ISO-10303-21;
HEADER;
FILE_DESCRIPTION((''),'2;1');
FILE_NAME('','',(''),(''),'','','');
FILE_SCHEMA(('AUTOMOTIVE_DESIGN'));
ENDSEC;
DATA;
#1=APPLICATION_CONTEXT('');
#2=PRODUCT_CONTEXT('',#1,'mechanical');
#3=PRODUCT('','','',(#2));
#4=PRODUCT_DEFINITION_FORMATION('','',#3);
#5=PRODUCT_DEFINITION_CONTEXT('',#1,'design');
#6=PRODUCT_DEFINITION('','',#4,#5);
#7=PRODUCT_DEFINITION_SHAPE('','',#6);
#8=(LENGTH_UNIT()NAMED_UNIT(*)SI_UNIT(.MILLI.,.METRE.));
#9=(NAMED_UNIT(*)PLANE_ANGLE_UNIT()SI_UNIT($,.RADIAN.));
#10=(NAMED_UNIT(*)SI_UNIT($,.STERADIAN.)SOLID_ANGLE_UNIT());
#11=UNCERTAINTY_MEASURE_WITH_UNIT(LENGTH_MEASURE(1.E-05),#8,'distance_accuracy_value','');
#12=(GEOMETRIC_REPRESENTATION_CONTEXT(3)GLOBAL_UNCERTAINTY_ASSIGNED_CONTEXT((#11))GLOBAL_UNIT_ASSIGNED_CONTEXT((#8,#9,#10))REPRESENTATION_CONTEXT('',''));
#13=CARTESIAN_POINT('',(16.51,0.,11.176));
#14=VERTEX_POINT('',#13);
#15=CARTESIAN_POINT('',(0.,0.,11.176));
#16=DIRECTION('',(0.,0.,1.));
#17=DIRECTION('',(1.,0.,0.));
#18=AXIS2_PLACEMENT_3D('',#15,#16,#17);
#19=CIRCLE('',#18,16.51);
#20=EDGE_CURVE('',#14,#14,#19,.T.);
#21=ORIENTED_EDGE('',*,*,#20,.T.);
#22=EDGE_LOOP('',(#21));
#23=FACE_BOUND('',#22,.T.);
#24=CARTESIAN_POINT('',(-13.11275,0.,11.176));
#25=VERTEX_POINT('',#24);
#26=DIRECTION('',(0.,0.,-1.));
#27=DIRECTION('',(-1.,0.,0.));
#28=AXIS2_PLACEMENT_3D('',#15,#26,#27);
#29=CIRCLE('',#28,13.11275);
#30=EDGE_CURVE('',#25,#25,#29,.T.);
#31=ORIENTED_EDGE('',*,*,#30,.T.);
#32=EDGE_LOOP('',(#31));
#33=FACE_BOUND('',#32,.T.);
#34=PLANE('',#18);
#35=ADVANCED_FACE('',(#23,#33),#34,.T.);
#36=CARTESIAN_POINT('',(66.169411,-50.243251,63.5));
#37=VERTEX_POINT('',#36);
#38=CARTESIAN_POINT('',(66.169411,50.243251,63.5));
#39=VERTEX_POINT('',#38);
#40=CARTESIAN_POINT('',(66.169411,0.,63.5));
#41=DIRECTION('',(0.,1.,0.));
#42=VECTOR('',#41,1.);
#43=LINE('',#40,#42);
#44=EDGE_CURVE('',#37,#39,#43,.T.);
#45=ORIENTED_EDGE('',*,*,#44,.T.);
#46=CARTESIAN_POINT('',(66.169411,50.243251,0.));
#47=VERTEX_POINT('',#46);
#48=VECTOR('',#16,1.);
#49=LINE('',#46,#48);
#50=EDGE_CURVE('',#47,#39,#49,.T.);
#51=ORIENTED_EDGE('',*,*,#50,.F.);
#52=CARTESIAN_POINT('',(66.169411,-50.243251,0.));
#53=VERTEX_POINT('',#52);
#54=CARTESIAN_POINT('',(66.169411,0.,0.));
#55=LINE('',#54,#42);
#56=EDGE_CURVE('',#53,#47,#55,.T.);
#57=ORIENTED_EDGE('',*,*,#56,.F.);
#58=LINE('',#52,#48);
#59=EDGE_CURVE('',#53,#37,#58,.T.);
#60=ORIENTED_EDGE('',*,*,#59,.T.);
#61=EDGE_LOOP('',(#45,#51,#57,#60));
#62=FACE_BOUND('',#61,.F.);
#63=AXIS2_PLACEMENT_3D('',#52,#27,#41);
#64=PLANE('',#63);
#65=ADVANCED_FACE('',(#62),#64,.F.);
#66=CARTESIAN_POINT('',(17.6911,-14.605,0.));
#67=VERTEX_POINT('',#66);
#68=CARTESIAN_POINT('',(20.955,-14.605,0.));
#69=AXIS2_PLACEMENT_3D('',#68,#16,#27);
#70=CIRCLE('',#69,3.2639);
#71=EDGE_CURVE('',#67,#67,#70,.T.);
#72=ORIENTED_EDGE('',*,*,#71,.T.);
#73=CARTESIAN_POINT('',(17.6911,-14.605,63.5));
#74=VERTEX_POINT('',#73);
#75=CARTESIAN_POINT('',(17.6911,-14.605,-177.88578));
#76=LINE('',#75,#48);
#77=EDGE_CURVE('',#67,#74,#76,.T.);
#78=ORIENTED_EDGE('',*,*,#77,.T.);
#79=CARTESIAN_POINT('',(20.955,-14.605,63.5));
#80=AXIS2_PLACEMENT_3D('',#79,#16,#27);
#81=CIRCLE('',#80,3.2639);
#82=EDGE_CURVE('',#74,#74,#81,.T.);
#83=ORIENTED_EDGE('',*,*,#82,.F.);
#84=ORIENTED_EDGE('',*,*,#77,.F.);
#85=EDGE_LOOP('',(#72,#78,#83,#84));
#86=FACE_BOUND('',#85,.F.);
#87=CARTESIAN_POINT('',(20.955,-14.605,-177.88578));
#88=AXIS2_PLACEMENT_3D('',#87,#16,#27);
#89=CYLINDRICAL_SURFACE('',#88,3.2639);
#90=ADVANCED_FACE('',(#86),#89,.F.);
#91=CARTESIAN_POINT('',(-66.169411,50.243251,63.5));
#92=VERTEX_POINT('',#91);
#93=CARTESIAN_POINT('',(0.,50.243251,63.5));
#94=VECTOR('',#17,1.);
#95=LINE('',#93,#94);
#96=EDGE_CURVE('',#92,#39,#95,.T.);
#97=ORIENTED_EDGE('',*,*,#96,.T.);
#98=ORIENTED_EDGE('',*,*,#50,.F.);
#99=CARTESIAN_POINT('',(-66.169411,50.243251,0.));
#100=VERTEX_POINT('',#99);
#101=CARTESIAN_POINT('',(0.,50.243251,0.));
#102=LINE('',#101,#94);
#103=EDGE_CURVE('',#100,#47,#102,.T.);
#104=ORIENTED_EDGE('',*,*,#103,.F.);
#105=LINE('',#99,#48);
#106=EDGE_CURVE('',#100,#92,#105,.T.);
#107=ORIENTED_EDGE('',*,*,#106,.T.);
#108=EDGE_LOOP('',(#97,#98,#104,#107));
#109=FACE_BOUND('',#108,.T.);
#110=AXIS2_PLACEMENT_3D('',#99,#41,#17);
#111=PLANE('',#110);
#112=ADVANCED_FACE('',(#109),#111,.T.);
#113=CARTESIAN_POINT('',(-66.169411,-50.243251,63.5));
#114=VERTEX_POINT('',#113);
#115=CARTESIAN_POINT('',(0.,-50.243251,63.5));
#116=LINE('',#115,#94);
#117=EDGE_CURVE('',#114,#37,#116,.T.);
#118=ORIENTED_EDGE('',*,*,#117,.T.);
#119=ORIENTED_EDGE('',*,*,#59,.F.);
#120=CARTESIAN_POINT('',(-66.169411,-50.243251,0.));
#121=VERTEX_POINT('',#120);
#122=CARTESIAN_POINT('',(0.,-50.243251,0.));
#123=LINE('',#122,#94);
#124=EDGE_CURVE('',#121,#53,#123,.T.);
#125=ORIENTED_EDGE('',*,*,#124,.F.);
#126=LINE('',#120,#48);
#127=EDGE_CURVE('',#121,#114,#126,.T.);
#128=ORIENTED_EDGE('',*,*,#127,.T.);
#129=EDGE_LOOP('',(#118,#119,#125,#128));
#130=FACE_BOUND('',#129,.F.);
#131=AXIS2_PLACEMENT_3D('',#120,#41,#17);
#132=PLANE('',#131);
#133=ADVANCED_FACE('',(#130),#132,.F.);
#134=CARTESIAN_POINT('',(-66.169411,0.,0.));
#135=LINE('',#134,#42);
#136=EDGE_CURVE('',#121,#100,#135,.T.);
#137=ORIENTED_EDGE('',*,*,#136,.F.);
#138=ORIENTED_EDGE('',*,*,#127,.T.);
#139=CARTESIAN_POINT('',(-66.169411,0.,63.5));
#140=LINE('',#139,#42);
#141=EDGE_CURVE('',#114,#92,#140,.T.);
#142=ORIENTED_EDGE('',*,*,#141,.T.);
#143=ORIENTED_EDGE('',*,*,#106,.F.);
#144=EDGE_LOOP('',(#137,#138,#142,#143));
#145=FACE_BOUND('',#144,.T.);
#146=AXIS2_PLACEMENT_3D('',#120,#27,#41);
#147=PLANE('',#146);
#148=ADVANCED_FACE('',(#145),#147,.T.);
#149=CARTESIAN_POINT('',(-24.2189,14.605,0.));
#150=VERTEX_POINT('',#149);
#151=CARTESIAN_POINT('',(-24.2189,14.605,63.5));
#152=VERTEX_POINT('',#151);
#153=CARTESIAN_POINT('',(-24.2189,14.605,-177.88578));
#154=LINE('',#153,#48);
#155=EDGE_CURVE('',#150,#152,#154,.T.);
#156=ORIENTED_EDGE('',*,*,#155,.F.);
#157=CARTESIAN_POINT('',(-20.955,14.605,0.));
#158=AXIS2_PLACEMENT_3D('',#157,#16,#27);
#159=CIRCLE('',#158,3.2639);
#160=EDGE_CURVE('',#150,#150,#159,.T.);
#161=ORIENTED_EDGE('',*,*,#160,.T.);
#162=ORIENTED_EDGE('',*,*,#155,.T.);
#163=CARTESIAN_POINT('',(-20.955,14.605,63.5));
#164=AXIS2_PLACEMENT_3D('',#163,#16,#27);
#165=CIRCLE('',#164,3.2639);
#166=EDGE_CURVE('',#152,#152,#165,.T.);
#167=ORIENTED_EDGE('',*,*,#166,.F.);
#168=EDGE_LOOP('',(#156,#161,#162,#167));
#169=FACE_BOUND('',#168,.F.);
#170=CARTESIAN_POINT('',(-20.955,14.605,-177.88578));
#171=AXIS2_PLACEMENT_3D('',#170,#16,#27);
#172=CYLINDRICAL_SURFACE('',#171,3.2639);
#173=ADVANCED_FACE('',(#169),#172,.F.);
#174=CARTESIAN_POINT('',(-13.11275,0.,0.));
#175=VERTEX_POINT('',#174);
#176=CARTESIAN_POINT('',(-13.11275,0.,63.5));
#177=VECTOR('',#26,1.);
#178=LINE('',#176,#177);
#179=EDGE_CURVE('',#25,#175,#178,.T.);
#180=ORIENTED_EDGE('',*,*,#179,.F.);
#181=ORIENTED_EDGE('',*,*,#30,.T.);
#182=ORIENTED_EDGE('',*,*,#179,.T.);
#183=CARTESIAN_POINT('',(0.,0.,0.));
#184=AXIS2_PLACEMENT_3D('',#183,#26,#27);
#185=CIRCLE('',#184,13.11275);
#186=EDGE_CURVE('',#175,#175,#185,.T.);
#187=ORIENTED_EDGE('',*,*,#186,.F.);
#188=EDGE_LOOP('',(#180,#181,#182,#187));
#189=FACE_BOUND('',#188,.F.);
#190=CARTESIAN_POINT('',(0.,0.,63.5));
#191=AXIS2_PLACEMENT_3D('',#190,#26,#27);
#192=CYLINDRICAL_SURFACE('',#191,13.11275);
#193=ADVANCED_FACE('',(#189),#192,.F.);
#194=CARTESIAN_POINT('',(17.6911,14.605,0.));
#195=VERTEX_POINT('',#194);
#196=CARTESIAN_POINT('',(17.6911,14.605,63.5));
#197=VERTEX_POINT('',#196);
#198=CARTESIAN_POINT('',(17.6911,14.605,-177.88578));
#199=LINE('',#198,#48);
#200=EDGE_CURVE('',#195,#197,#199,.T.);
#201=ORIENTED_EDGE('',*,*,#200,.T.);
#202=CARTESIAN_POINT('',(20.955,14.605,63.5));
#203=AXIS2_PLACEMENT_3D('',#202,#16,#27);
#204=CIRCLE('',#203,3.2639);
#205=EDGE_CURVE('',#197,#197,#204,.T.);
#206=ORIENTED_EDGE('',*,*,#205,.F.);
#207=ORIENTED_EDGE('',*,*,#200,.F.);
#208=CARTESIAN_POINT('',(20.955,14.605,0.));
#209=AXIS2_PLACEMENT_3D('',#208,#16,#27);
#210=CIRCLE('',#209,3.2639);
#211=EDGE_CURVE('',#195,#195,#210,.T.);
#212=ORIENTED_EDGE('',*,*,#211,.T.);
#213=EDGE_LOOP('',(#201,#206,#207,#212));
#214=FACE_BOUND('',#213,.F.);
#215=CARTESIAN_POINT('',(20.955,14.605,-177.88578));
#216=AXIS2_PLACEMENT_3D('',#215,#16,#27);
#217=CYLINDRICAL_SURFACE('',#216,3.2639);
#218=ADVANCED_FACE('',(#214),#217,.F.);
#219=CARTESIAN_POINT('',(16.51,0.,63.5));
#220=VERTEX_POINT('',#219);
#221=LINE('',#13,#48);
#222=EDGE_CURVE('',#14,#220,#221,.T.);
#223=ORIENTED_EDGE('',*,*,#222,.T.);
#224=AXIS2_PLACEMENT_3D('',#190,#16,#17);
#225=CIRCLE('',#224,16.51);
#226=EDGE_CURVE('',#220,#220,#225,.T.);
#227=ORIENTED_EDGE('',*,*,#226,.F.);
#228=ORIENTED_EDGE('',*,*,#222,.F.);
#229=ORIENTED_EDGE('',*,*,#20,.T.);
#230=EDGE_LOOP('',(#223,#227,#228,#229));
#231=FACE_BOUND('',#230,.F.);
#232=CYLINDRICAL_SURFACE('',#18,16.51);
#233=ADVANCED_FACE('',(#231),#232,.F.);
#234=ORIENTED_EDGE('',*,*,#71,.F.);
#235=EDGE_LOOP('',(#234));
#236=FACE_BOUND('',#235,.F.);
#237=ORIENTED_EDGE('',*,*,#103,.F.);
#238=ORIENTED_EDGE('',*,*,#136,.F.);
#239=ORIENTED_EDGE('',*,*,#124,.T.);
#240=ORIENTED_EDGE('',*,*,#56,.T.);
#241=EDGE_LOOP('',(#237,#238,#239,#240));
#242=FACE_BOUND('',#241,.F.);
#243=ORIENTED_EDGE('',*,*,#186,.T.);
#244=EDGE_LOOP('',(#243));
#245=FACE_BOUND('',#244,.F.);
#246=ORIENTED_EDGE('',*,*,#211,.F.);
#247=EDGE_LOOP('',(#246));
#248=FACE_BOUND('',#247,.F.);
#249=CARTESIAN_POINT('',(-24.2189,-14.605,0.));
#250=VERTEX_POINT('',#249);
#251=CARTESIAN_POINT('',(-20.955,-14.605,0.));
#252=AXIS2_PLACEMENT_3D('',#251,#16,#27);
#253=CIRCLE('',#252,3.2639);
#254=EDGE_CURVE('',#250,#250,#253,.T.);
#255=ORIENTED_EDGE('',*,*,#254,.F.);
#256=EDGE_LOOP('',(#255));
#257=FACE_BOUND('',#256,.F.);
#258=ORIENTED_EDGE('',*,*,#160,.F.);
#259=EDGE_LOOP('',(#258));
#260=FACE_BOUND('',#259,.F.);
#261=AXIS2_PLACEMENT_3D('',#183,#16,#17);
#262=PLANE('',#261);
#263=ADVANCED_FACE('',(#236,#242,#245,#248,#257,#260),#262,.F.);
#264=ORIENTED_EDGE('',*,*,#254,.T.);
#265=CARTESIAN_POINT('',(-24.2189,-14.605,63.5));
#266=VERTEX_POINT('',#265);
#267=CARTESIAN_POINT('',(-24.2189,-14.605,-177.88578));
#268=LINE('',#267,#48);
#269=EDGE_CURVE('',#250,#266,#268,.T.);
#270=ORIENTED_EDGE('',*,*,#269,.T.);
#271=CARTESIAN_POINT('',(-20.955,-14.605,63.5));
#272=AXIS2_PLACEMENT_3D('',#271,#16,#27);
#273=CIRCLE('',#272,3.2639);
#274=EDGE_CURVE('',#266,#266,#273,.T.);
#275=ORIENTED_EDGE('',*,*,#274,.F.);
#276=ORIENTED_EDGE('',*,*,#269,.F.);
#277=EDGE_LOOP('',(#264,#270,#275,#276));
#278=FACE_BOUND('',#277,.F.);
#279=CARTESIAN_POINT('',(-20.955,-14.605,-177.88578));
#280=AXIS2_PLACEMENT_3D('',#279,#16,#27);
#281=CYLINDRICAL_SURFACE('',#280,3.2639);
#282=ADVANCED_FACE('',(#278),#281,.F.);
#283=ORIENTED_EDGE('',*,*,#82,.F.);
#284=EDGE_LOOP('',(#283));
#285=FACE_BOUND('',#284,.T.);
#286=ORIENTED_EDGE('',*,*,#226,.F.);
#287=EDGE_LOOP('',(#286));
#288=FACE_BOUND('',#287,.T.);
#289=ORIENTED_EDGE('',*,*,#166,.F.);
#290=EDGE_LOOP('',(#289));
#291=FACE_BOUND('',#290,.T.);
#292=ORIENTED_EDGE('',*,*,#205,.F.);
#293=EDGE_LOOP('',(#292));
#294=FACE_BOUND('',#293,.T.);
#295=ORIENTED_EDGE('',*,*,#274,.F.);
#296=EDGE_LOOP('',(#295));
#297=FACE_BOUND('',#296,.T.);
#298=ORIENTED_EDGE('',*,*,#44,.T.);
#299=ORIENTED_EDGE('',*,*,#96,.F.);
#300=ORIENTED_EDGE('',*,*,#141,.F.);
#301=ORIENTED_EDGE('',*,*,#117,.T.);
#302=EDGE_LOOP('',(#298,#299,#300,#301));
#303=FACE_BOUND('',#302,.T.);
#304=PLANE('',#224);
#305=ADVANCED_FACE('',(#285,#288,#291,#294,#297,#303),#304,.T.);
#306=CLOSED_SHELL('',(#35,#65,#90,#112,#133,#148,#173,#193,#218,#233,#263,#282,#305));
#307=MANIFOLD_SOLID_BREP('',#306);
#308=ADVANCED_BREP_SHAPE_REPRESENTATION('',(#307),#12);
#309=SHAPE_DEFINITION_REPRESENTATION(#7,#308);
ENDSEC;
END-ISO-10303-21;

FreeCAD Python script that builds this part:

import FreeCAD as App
import Part
import Sketcher

V = App.Vector
Q = App.Units.Quantity


def add_polygon(sketch, points):
    """Adds a closed chain of lines whose ends are joined by coincident constraints."""
    first, n = sketch.GeometryCount, len(points)
    for a, b in zip(points, points[1:] + points[:1]):
        sketch.addGeometry(Part.LineSegment(App.Vector(*a, 0), App.Vector(*b, 0)), False)
    for i in range(n):
        sketch.addConstraint(Sketcher.Constraint("Coincident", first + i, 2, first + (i + 1) % n, 1))

doc = App.newDocument("Part")
params = doc.addObject("Spreadsheet::Sheet", "Params")
for row, (alias, value) in enumerate([
    ("pad1_length", "2.5 in"),
    ("hole_diameter", "1.0325 in"),
    ("hole_cbore_diameter", "1.3 in"),
    ("hole_cbore_depth", "2.06 in"),
    ("sketch3_diameter", "0.257 in"),
    ("hole2_diameter", "0.257 in"),
], start=1):
    params.set(f"A{row}", alias)
    params.set(f"B{row}", "=" + value)
    params.setAlias(f"B{row}", alias)

body = doc.addObject("PartDesign::Body", "Body")

sketch1 = body.newObject("Sketcher::SketchObject", "Sketch")
sketch1.AttachmentSupport = (doc.getObject("XY_Plane"), [""])
sketch1.MapMode = "FlatFace"
add_polygon(sketch1, [(-66, 50), (-66, -50), (66, -50), (66, 50)])
sketch1.addConstraint([
    Sketcher.Constraint("Vertical", 0),
    Sketcher.Constraint("Horizontal", 1),
    Sketcher.Constraint("Vertical", 2),
    Sketcher.Constraint("Horizontal", 3),
    Sketcher.Constraint("Symmetric", 0, 2, 2, 2, -1, 1),
    Sketcher.Constraint("DistanceY", 0, 2, 0, 1, Q("100.486502 mm")),
    Sketcher.Constraint("DistanceX", 1, 1, 1, 2, Q("132.338822 mm")),
])
pad1 = body.newObject("PartDesign::Pad", "Pad")
pad1.Profile = sketch1
pad1.setExpression("Length", "Params.pad1_length")

sketch2 = body.newObject("Sketcher::SketchObject", "Sketch001")
sketch2.AttachmentSupport = (doc.getObject("XY_Plane"), [""])
sketch2.MapMode = "FlatFace"
sketch2.AttachmentOffset = App.Placement(V(0, 0, 2.5 * 25.4), App.Rotation())
sketch2.addGeometry(Part.Circle(V(0, 0, 0), V(0, 0, 1), 13), False)
sketch2.addConstraint([
    Sketcher.Constraint("Coincident", 0, 3, -1, 1),
    Sketcher.Constraint("Diameter", 0, Q("1.0325 in")),
])
doc.recompute()
hole = body.newObject("PartDesign::Hole", "Hole")
hole.Profile = sketch2
hole.ThreadType = "None"
hole.setExpression("Diameter", "Params.hole_diameter")
hole.DepthType = "ThroughAll"
hole.HoleCutType = "Counterbore"
hole.setExpression("HoleCutDiameter", "Params.hole_cbore_diameter")
hole.setExpression("HoleCutDepth", "Params.hole_cbore_depth")

sketch3 = body.newObject("Sketcher::SketchObject", "Sketch002")
sketch3.AttachmentSupport = (doc.getObject("XY_Plane"), [""])
sketch3.MapMode = "FlatFace"
sketch3.addGeometry([
    Part.Circle(V(-21, -14.6, 0), V(0, 0, 1), 3.3),
    Part.Circle(V(-21, 14.6, 0), V(0, 0, 1), 3.3),
    Part.Circle(V(21, 14.6, 0), V(0, 0, 1), 3.3),
    Part.Circle(V(21, -14.6, 0), V(0, 0, 1), 3.3),
], False)
sketch3.addConstraint([
    Sketcher.Constraint("Equal", 0, 1),
    Sketcher.Constraint("Equal", 1, 2),
    Sketcher.Constraint("Equal", 2, 3),
    Sketcher.Constraint("Symmetric", 0, 3, 2, 3, -1, 1),
    Sketcher.Constraint("Symmetric", 1, 3, 3, 3, -1, 1),
    Sketcher.Constraint("Symmetric", 1, 3, 2, 3, -2),
    Sketcher.Constraint("Diameter", 0, Q("0.257 in")),
    Sketcher.Constraint("DistanceY", 0, 3, 1, 3, Q("1.15 in")),
    Sketcher.Constraint("DistanceX", 1, 3, 2, 3, Q("1.65 in")),
])
sketch3.setExpression("Constraints[6]", "Params.sketch3_diameter")
doc.recompute()
hole2 = body.newObject("PartDesign::Hole", "Hole001")
hole2.Profile = sketch3
hole2.ThreadType = "None"
hole2.setExpression("Diameter", "Params.hole2_diameter")
hole2.DepthType = "ThroughAll"
hole2.Reversed = True

doc.recompute()
